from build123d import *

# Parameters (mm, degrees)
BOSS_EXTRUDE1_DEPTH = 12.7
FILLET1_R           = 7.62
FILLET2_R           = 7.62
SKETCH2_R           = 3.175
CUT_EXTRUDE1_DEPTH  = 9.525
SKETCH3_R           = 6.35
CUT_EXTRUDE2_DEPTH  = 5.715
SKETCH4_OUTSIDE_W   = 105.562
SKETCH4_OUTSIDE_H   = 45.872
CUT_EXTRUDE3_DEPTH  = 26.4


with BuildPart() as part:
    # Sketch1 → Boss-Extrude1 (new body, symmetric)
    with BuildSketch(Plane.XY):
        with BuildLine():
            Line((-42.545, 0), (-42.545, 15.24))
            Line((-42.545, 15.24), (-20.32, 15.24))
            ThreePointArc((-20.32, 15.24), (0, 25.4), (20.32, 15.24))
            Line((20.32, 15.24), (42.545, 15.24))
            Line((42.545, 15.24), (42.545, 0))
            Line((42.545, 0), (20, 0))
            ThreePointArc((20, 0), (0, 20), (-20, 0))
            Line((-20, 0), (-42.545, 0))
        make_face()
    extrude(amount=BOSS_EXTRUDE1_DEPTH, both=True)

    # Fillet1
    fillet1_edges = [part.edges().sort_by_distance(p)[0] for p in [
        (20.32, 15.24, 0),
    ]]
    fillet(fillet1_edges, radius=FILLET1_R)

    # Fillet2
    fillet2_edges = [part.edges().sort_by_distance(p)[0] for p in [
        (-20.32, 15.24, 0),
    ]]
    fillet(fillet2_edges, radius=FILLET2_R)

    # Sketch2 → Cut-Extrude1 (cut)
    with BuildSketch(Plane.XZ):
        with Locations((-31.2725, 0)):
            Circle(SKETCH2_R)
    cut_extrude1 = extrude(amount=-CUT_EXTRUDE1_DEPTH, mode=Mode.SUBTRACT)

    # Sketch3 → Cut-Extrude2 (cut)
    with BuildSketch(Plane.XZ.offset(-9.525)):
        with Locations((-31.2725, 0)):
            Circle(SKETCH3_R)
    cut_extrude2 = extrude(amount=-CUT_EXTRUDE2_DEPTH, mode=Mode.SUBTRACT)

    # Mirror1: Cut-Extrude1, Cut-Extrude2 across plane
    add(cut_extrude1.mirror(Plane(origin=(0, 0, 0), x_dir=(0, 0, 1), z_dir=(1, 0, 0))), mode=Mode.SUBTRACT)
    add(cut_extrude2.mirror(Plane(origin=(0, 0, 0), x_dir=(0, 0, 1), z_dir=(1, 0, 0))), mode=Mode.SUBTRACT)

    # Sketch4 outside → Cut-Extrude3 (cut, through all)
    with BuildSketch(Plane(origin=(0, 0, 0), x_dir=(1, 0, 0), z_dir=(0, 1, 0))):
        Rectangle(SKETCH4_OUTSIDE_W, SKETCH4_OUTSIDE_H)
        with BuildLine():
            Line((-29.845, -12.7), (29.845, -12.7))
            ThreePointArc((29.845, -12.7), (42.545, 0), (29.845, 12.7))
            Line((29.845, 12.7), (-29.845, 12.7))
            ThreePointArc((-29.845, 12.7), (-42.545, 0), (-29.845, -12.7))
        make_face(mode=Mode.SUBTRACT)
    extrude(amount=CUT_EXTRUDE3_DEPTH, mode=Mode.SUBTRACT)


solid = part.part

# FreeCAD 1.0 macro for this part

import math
import FreeCAD as App
import Part
import Sketcher
from FreeCAD import Vector
Q = App.Units.Quantity


def edges_at(feature, points):
    """Names of the edges that pass closest to the given points."""
    edges = feature.Shape.Edges
    near = lambda p: min(range(len(edges)), key=lambda i: edges[i].distToShape(Part.Vertex(*p))[0])
    return sorted({f"Edge{near(p) + 1}" for p in points})


def add_polygon(sketch, points):
    """Adds a closed chain of lines whose ends are joined by coincident constraints."""
    first, n = sketch.GeometryCount, len(points)
    for a, b in zip(points, points[1:] + points[:1]):
        sketch.addGeometry(Part.LineSegment(App.Vector(*a, 0), App.Vector(*b, 0)), False)
    for i in range(n):
        sketch.addConstraint(Sketcher.Constraint("Coincident", first + i, 2, first + (i + 1) % n, 1))

doc = App.newDocument("Part")
body = doc.addObject("PartDesign::Body", "Body")

sketch1 = doc.addObject("Sketcher::SketchObject", "Sketch")
body.addObject(sketch1)
sketch1.AttachmentSupport = (doc.XY_Plane, [""])
sketch1.MapMode = "FlatFace"
sketch1.addGeometry([
    Part.LineSegment(Vector(-42.545, 15.24, 0), Vector(-42.545, 0, 0)),
    Part.LineSegment(Vector(-42.545, 0, 0), Vector(-20, 0, 0)),
    Part.ArcOfCircle(Part.Circle(Vector(0, 0, 0), Vector(0, 0, 1), 20), math.radians(0), math.radians(180)),
    Part.LineSegment(Vector(20, 0, 0), Vector(42.545, 0, 0)),
    Part.LineSegment(Vector(42.545, 0, 0), Vector(42.545, 15.24, 0)),
    Part.LineSegment(Vector(42.545, 15.24, 0), Vector(20.32, 15.24, 0)),
    Part.ArcOfCircle(Part.Circle(Vector(0, 0, 0), Vector(0, 0, 1), 25.4), math.radians(36.869898), math.radians(143.130102)),
    Part.LineSegment(Vector(-20.32, 15.24, 0), Vector(-42.545, 15.24, 0)),
], False)
sketch1.addConstraint([
    Sketcher.Constraint("Coincident", 0, 2, 1, 1),
    Sketcher.Constraint("Coincident", 1, 2, 2, 2),
    Sketcher.Constraint("Coincident", 2, 1, 3, 1),
    Sketcher.Constraint("Coincident", 3, 2, 4, 1),
    Sketcher.Constraint("Coincident", 4, 2, 5, 1),
    Sketcher.Constraint("Coincident", 5, 2, 6, 1),
    Sketcher.Constraint("Coincident", 6, 2, 7, 1),
    Sketcher.Constraint("Coincident", 7, 2, 0, 1),
    Sketcher.Constraint("Vertical", 0),
    Sketcher.Constraint("Horizontal", 1),
    Sketcher.Constraint("Horizontal", 3),
    Sketcher.Constraint("Vertical", 4),
    Sketcher.Constraint("Horizontal", 5),
    Sketcher.Constraint("Horizontal", 7),
    Sketcher.Constraint("Coincident", 2, 3, -1, 1),
    Sketcher.Constraint("Coincident", 6, 3, -1, 1),
    Sketcher.Constraint("Symmetric", 0, 2, 3, 2, -1, 1),
    Sketcher.Constraint("PointOnObject", 0, 2, -1),
    Sketcher.Constraint("Horizontal", 5, 2, 6, 2),
    Sketcher.Constraint("Radius", 6, Q("1 in")),
    Sketcher.Constraint("DistanceY", 0, 2, 0, 1, Q("0.6 in")),
    Sketcher.Constraint("DistanceX", 5, 2, 5, 1, Q("0.875 in")),
    Sketcher.Constraint("Radius", 2, 20.0),
])
pad1 = doc.addObject("PartDesign::Pad", "Pad")
body.addObject(pad1)
pad1.Profile = sketch1
pad1.Length = Q("1 in")
pad1.Midplane = True
doc.recompute()

fillet = doc.addObject("PartDesign::Fillet", "Fillet")
body.addObject(fillet)
fillet.Base = (pad1, edges_at(pad1, [(20.32, 15.24, 0)]))
fillet.Radius = Q("0.3 in")
doc.recompute()

fillet2 = doc.addObject("PartDesign::Fillet", "Fillet001")
body.addObject(fillet2)
fillet2.Base = (fillet, edges_at(fillet, [(-20.32, 15.24, 0)]))
fillet2.Radius = Q("0.3 in")

sketch2 = doc.addObject("Sketcher::SketchObject", "Sketch001")
body.addObject(sketch2)
sketch2.AttachmentSupport = (doc.XZ_Plane, [""])
sketch2.MapMode = "FlatFace"
sketch2.addGeometry(Part.Circle(Vector(-31.2725, 0, 0), Vector(0, 0, 1), 3.175), False)
sketch2.addConstraint([
    Sketcher.Constraint("PointOnObject", 0, 3, -1),
    Sketcher.Constraint("Diameter", 0, Q("0.25 in")),
    Sketcher.Constraint("DistanceX", 0, 3, -1, 1, 31.2725),
])
pocket1 = doc.addObject("PartDesign::Pocket", "Pocket")
body.addObject(pocket1)
pocket1.Profile = sketch2
pocket1.Length = Q("0.375 in")

sketch3 = doc.addObject("Sketcher::SketchObject", "Sketch002")
body.addObject(sketch3)
sketch3.AttachmentSupport = (doc.XZ_Plane, [""])
sketch3.MapMode = "FlatFace"
sketch3.AttachmentOffset = App.Placement(Vector(0, 0, -0.375 * 25.4), App.Rotation())
sketch3.addGeometry(Part.Circle(Vector(-31.2725, 0, 0), Vector(0, 0, 1), 6.35), False)
sketch3.addConstraint([
    Sketcher.Constraint("PointOnObject", 0, 3, -1),
    Sketcher.Constraint("Diameter", 0, Q("0.5 in")),
    Sketcher.Constraint("DistanceX", 0, 3, -1, 1, 31.2725),
])
pocket2 = doc.addObject("PartDesign::Pocket", "Pocket001")
body.addObject(pocket2)
pocket2.Profile = sketch3
pocket2.Length = Q("0.225 in")
doc.recompute()

mirrored = doc.addObject("PartDesign::Mirrored", "Mirrored")
body.addObject(mirrored)
mirrored.Originals = [pocket1, pocket2]
mirrored.MirrorPlane = (doc.YZ_Plane, [""])
body.Tip = mirrored

sketch4 = doc.addObject("Sketcher::SketchObject", "Sketch003")
body.addObject(sketch4)
sketch4.AttachmentSupport = (doc.XZ_Plane, [""])
sketch4.MapMode = "FlatFace"
add_polygon(sketch4, [(-52.781, -22.936), (-52.781, 22.936), (52.781, 22.936), (52.781, -22.936)])
sketch4.addGeometry(Part.LineSegment(Vector(29.845, 12.7, 0), Vector(-29.845, 12.7, 0)), False)
sketch4.addGeometry(Part.ArcOfCircle(Part.Circle(Vector(-29.845, 0, 0), Vector(0, 0, 1), 12.7), math.radians(90), math.radians(270)), False)
sketch4.addGeometry(Part.LineSegment(Vector(-29.845, -12.7, 0), Vector(29.845, -12.7, 0)), False)
sketch4.addGeometry(Part.ArcOfCircle(Part.Circle(Vector(29.845, 0, 0), Vector(0, 0, 1), 12.7), math.radians(-90), math.radians(90)), False)
sketch4.addConstraint([
    Sketcher.Constraint("Tangent", 4, 2, 5, 1),
    Sketcher.Constraint("Tangent", 5, 2, 6, 1),
    Sketcher.Constraint("Tangent", 6, 2, 7, 1),
    Sketcher.Constraint("Tangent", 7, 2, 4, 1),
    Sketcher.Constraint("Vertical", 0),
    Sketcher.Constraint("Horizontal", 1),
    Sketcher.Constraint("Vertical", 2),
    Sketcher.Constraint("Horizontal", 3),
    Sketcher.Constraint("Horizontal", 4),
    Sketcher.Constraint("Horizontal", 6),
    Sketcher.Constraint("Symmetric", 5, 3, 7, 3, -1, 1),
    Sketcher.Constraint("Symmetric", 0, 2, 2, 2, -1, 1),
    Sketcher.Constraint("Radius", 5, Q("0.5 in")),
    Sketcher.Constraint("DistanceX", 4, 2, 4, 1, Q("2.35 in")),
    Sketcher.Constraint("DistanceX", 1, 1, 1, 2, 105.562),
    Sketcher.Constraint("DistanceY", 0, 1, 0, 2, 45.872),
])
pocket3 = doc.addObject("PartDesign::Pocket", "Pocket002")
body.addObject(pocket3)
pocket3.Profile = sketch4
pocket3.Type = "ThroughAll"

doc.recompute()
